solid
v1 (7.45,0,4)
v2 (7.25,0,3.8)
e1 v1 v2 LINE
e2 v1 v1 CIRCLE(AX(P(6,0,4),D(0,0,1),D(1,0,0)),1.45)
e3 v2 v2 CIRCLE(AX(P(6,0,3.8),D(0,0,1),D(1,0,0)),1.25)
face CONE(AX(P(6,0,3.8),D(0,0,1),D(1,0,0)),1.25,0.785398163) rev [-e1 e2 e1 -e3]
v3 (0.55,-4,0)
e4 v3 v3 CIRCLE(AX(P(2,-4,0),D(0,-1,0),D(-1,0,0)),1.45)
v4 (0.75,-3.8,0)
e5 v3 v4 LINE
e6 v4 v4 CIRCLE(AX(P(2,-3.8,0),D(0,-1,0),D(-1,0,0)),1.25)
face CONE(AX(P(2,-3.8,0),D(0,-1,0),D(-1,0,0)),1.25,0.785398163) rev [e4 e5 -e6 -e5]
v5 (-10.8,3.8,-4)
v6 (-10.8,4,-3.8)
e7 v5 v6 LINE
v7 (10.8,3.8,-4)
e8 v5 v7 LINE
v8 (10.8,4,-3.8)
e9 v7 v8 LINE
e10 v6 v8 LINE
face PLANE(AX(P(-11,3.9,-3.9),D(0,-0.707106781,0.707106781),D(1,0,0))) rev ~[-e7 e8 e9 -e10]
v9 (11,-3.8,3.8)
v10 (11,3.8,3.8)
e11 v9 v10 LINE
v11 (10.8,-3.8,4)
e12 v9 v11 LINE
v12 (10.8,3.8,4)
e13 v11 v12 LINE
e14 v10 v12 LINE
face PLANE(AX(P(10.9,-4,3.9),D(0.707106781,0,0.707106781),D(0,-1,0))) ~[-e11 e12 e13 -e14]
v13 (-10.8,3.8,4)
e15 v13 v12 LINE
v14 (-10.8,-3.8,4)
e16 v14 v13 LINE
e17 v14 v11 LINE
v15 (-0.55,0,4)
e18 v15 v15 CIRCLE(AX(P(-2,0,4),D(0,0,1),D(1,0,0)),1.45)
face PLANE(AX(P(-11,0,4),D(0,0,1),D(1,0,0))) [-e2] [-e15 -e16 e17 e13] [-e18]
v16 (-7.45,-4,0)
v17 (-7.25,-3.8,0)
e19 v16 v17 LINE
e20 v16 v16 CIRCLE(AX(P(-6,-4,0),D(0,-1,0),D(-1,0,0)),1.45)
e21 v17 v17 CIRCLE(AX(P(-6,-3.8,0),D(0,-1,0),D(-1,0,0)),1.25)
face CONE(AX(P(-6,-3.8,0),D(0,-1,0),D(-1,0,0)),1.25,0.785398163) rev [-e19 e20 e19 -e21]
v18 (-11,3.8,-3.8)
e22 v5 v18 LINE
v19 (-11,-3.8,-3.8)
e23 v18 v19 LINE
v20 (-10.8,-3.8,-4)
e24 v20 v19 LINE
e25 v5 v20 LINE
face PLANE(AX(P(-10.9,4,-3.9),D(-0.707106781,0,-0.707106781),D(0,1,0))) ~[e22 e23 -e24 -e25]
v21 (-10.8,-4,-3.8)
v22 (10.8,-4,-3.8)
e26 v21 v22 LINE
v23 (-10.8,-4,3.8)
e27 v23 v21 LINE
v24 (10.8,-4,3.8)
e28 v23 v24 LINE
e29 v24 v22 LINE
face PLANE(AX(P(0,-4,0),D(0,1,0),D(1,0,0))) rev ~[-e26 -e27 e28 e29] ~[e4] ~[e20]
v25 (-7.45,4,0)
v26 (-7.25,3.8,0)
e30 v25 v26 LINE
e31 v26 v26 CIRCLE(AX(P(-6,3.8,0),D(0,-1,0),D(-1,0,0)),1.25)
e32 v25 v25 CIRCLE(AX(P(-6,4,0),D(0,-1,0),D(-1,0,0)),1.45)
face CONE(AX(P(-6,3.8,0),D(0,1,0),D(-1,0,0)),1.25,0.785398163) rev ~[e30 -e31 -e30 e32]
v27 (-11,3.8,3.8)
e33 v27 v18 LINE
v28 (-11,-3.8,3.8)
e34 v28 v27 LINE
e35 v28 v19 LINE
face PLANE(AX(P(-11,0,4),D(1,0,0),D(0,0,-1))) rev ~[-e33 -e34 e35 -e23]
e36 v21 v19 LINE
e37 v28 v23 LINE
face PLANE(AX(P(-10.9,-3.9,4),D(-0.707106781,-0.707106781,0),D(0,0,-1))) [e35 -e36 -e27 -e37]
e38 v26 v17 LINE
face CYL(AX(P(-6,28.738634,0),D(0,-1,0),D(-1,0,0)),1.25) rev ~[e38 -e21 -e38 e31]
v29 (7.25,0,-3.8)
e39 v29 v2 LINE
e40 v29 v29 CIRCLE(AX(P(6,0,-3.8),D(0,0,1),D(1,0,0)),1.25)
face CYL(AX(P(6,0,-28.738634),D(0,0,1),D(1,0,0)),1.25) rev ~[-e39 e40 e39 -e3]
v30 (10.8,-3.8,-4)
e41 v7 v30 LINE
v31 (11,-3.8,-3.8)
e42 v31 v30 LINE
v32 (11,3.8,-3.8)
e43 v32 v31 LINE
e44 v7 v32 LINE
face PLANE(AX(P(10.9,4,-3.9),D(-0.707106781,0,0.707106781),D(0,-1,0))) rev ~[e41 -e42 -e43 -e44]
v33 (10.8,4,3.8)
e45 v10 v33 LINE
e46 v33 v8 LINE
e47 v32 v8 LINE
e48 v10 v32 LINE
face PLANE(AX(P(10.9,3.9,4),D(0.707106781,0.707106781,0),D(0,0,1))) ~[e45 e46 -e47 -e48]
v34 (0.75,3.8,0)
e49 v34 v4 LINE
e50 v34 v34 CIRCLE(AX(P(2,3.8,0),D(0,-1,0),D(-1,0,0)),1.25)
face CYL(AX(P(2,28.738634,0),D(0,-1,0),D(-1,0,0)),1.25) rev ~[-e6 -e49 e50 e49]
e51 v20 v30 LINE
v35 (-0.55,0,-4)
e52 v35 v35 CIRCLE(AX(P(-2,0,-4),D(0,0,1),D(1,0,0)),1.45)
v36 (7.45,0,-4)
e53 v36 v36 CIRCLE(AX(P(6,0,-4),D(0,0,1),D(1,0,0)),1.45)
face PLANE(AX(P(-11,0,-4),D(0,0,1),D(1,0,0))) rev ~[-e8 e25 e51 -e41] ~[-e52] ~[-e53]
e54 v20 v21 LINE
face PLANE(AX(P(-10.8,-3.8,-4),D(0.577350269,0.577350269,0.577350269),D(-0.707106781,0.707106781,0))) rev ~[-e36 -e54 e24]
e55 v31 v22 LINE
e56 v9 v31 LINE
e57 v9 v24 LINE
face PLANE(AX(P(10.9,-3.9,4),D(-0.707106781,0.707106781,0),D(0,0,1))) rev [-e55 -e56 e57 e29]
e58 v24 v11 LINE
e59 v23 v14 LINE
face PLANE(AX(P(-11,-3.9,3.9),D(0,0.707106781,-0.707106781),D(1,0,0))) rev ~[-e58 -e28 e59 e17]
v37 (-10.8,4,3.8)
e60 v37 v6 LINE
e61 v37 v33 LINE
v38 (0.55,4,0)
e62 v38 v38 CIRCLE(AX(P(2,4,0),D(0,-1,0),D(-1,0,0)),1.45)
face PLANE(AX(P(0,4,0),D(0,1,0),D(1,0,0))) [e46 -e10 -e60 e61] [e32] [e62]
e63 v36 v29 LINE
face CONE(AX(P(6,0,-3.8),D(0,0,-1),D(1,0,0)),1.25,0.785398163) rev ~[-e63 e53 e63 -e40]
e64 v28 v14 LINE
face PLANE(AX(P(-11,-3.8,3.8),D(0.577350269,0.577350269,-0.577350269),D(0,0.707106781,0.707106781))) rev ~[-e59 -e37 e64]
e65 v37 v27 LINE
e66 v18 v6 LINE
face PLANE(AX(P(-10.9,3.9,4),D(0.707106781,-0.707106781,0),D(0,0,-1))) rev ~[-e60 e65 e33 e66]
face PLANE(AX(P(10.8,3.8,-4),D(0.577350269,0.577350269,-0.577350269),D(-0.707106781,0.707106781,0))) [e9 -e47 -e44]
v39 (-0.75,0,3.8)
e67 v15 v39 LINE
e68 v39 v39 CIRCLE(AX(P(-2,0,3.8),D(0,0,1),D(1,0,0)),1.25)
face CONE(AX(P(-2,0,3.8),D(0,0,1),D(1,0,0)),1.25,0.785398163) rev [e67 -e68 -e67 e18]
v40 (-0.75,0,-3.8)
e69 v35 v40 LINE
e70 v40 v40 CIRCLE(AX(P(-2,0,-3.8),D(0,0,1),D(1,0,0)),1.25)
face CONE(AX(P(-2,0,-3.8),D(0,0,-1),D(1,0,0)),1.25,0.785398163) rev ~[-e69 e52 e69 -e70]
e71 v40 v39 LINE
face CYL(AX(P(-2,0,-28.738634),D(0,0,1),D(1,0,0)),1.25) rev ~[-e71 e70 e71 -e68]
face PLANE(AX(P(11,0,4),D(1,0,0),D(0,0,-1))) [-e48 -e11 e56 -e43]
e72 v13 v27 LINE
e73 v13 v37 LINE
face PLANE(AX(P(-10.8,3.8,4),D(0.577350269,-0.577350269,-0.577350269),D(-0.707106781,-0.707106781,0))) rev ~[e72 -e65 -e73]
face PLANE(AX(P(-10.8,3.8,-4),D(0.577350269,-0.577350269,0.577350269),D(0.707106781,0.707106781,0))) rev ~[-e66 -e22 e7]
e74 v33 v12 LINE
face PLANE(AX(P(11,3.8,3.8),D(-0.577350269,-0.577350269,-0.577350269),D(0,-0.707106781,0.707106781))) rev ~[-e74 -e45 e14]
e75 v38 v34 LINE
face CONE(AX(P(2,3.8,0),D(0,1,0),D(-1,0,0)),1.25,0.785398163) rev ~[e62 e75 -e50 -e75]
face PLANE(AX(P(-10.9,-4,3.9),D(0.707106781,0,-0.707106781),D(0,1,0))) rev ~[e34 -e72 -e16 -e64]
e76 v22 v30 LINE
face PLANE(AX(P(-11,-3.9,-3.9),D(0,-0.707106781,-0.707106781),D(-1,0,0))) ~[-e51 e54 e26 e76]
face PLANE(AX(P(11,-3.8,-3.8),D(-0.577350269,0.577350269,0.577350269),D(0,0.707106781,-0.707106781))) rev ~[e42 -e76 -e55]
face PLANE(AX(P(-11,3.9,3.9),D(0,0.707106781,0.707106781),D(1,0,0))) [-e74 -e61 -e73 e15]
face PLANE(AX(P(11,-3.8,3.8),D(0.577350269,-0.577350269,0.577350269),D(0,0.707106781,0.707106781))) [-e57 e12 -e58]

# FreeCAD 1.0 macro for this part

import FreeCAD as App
import Part
import Sketcher
from FreeCAD import Vector
Q = App.Units.Quantity

doc = App.newDocument("Part")
body = doc.addObject("PartDesign::Body", "Body")

# Sketch on XZ plane
sketch1 = body.newObject("Sketcher::SketchObject", "Sketch")
sketch1.AttachmentSupport = (doc.getObject("XZ_Plane"), [""])
sketch1.MapMode = "FlatFace"
sketch1.addGeometry(Part.LineSegment(Vector(-11, -4, 0), Vector(-11, 4, 0)), False)
sketch1.addGeometry(Part.LineSegment(Vector(-11, 4, 0), Vector(11, 4, 0)), False)
sketch1.addGeometry(Part.LineSegment(Vector(11, 4, 0), Vector(11, -4, 0)), False)
sketch1.addGeometry(Part.LineSegment(Vector(11, -4, 0), Vector(-11, -4, 0)), False)
sketch1.addConstraint(Sketcher.Constraint("Coincident", 0, 2, 1, 1))
sketch1.addConstraint(Sketcher.Constraint("Coincident", 1, 2, 2, 1))
sketch1.addConstraint(Sketcher.Constraint("Coincident", 2, 2, 3, 1))
sketch1.addConstraint(Sketcher.Constraint("Coincident", 3, 2, 0, 1))
sketch1.addConstraint(Sketcher.Constraint("Vertical", 0))
sketch1.addConstraint(Sketcher.Constraint("Horizontal", 1))
sketch1.addConstraint(Sketcher.Constraint("Vertical", 2))
sketch1.addConstraint(Sketcher.Constraint("Horizontal", 3))
sketch1.addConstraint(Sketcher.Constraint("Symmetric", 0, 2, 2, 2, -1, 1))
sketch1.addConstraint(Sketcher.Constraint("DistanceX", 1, 1, 1, 2, Q("22 mm")))
sketch1.addConstraint(Sketcher.Constraint("DistanceY", 0, 1, 0, 2, Q("8 mm")))
pad1 = body.newObject("PartDesign::Pad", "Pad")
pad1.Profile = sketch1
pad1.Length = 8
pad1.Midplane = True

# Sketch on XZ plane
sketch2 = body.newObject("Sketcher::SketchObject", "Sketch001")
sketch2.AttachmentSupport = (doc.getObject("XZ_Plane"), [""])
sketch2.MapMode = "FlatFace"
sketch2.AttachmentOffset = App.Placement(Vector(0, 0, -4), App.Rotation())
sketch2.addGeometry(Part.Circle(Vector(-6, 0, 0), Vector(0, 0, 1), 1.25), False)
sketch2.addGeometry(Part.Circle(Vector(2, 0, 0), Vector(0, 0, 1), 1.25), False)
sketch2.addConstraint(Sketcher.Constraint("Equal", 0, 1))
sketch2.addConstraint(Sketcher.Constraint("PointOnObject", 0, 3, -1))
sketch2.addConstraint(Sketcher.Constraint("PointOnObject", 1, 3, -1))
sketch2.addConstraint(Sketcher.Constraint("Diameter", 0, Q("2.5 mm")))
sketch2.addConstraint(Sketcher.Constraint("DistanceX", 0, 3, -1, 1, Q("6 mm")))
sketch2.addConstraint(Sketcher.Constraint("DistanceX", -1, 1, 1, 3, Q("2 mm")))
doc.recompute()
hole = body.newObject("PartDesign::Hole", "Hole")
hole.Profile = sketch2
hole.ThreadType = "None"
hole.Diameter = 2.5
hole.DepthType = "ThroughAll"
hole.Reversed = True

# Sketch on XY plane
sketch3 = body.newObject("Sketcher::SketchObject", "Sketch002")
sketch3.AttachmentSupport = (doc.getObject("XY_Plane"), [""])
sketch3.MapMode = "FlatFace"
sketch3.AttachmentOffset = App.Placement(Vector(0, 0, -4), App.Rotation())
sketch3.addGeometry(Part.Circle(Vector(6, 0, 0), Vector(0, 0, 1), 1.25), False)
sketch3.addGeometry(Part.Circle(Vector(-2, 0, 0), Vector(0, 0, 1), 1.25), False)
sketch3.addConstraint(Sketcher.Constraint("Equal", 0, 1))
sketch3.addConstraint(Sketcher.Constraint("PointOnObject", 0, 3, -1))
sketch3.addConstraint(Sketcher.Constraint("PointOnObject", 1, 3, -1))
sketch3.addConstraint(Sketcher.Constraint("Diameter", 0, Q("2.5 mm")))
sketch3.addConstraint(Sketcher.Constraint("DistanceX", -1, 1, 0, 3, Q("6 mm")))
sketch3.addConstraint(Sketcher.Constraint("DistanceX", 1, 3, -1, 1, Q("2 mm")))
doc.recompute()
hole2 = body.newObject("PartDesign::Hole", "Hole001")
hole2.Profile = sketch3
hole2.ThreadType = "None"
hole2.Diameter = 2.5
hole2.DepthType = "ThroughAll"
hole2.Reversed = True
doc.recompute()

chamfer = body.newObject("PartDesign::Chamfer", "Chamfer")
chamfer.Base = (hole2, ["Edge1"])
chamfer.UseAllEdges = True
chamfer.Size = 0.2

doc.recompute()
